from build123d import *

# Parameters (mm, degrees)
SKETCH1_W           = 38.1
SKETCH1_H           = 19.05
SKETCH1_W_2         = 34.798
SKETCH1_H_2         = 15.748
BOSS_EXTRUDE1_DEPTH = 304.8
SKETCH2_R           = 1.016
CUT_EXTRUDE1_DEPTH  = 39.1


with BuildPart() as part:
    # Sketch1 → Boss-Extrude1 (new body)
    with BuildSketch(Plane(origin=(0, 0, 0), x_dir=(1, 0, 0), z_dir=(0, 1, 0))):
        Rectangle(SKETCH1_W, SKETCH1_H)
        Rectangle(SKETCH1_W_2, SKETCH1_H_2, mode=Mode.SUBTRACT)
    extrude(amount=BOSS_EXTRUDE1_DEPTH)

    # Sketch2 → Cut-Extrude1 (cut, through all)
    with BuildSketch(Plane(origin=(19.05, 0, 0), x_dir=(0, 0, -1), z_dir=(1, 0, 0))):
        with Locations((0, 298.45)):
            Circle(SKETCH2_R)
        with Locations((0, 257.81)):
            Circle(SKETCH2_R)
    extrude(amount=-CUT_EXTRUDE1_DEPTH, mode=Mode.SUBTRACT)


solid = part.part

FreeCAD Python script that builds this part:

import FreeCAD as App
import Part
import Sketcher
Q = App.Units.Quantity


def add_polygon(sketch, points):
    """Adds a closed chain of lines whose ends are joined by coincident constraints."""
    first, n = sketch.GeometryCount, len(points)
    for a, b in zip(points, points[1:] + points[:1]):
        sketch.addGeometry(Part.LineSegment(App.Vector(*a, 0), App.Vector(*b, 0)), False)
    for i in range(n):
        sketch.addConstraint(Sketcher.Constraint("Coincident", first + i, 2, first + (i + 1) % n, 1))

doc = App.newDocument("Part")
body = doc.addObject("PartDesign::Body", "Body")

sketch1 = body.newObject("Sketcher::SketchObject", "Sketch")
sketch1.AttachmentSupport = (doc.getObject("XZ_Plane"), [""])
sketch1.MapMode = "FlatFace"
add_polygon(sketch1, [(-19, -10), (-19, 10), (19, 10), (19, -10)])
add_polygon(sketch1, [(17, 8), (-17, 8), (-17, -8), (17, -8)])
sketch1.addConstraint(Sketcher.Constraint("Vertical", 0))
sketch1.addConstraint(Sketcher.Constraint("Horizontal", 1))
sketch1.addConstraint(Sketcher.Constraint("Vertical", 2))
sketch1.addConstraint(Sketcher.Constraint("Horizontal", 3))
sketch1.addConstraint(Sketcher.Constraint("Horizontal", 4))
sketch1.addConstraint(Sketcher.Constraint("Vertical", 5))
sketch1.addConstraint(Sketcher.Constraint("Horizontal", 6))
sketch1.addConstraint(Sketcher.Constraint("Vertical", 7))
sketch1.addConstraint(Sketcher.Constraint("Symmetric", 0, 2, 2, 2, -1, 1))
sketch1.addConstraint(Sketcher.Constraint("Symmetric", 4, 2, 6, 2, -1, 1))
sketch1.addConstraint(Sketcher.Constraint("DistanceX", 1, 1, 1, 2, Q("1.5 in")))
sketch1.addConstraint(Sketcher.Constraint("DistanceX", 4, 2, 4, 1, Q("1.37 in")))
sketch1.addConstraint(Sketcher.Constraint("DistanceY", 0, 1, 0, 2, Q("0.75 in")))
sketch1.addConstraint(Sketcher.Constraint("DistanceY", 5, 2, 5, 1, Q("0.62 in")))
pad1 = body.newObject("PartDesign::Pad", "Pad")
pad1.Profile = sketch1
pad1.Length = Q("12 in")
pad1.Reversed = True

sketch2 = body.newObject("Sketcher::SketchObject", "Sketch001")
sketch2.AttachmentSupport = (doc.getObject("YZ_Plane"), [""])
sketch2.MapMode = "FlatFace"
sketch2.AttachmentOffset = App.Placement(App.Vector(0, 0, 0.75 * 25.4), App.Rotation())
sketch2.addGeometry(Part.Circle(App.Vector(298.4, 0, 0), App.Vector(0, 0, 1), 1), False)
sketch2.addGeometry(Part.Circle(App.Vector(257.8, 0, 0), App.Vector(0, 0, 1), 1), False)
sketch2.addConstraint(Sketcher.Constraint("Equal", 0, 1))
sketch2.addConstraint(Sketcher.Constraint("PointOnObject", 0, 3, -1))
sketch2.addConstraint(Sketcher.Constraint("PointOnObject", 1, 3, -1))
sketch2.addConstraint(Sketcher.Constraint("Diameter", 0, Q("0.08 in")))
sketch2.addConstraint(Sketcher.Constraint("DistanceX", 1, 3, 0, 3, Q("1.6 in")))
sketch2.addConstraint(Sketcher.Constraint("DistanceX", -1, 1, 0, 3, Q("11.75 in")))
pocket1 = body.newObject("PartDesign::Pocket", "Pocket")
pocket1.Profile = sketch2
pocket1.Type = "ThroughAll"

doc.recompute()
